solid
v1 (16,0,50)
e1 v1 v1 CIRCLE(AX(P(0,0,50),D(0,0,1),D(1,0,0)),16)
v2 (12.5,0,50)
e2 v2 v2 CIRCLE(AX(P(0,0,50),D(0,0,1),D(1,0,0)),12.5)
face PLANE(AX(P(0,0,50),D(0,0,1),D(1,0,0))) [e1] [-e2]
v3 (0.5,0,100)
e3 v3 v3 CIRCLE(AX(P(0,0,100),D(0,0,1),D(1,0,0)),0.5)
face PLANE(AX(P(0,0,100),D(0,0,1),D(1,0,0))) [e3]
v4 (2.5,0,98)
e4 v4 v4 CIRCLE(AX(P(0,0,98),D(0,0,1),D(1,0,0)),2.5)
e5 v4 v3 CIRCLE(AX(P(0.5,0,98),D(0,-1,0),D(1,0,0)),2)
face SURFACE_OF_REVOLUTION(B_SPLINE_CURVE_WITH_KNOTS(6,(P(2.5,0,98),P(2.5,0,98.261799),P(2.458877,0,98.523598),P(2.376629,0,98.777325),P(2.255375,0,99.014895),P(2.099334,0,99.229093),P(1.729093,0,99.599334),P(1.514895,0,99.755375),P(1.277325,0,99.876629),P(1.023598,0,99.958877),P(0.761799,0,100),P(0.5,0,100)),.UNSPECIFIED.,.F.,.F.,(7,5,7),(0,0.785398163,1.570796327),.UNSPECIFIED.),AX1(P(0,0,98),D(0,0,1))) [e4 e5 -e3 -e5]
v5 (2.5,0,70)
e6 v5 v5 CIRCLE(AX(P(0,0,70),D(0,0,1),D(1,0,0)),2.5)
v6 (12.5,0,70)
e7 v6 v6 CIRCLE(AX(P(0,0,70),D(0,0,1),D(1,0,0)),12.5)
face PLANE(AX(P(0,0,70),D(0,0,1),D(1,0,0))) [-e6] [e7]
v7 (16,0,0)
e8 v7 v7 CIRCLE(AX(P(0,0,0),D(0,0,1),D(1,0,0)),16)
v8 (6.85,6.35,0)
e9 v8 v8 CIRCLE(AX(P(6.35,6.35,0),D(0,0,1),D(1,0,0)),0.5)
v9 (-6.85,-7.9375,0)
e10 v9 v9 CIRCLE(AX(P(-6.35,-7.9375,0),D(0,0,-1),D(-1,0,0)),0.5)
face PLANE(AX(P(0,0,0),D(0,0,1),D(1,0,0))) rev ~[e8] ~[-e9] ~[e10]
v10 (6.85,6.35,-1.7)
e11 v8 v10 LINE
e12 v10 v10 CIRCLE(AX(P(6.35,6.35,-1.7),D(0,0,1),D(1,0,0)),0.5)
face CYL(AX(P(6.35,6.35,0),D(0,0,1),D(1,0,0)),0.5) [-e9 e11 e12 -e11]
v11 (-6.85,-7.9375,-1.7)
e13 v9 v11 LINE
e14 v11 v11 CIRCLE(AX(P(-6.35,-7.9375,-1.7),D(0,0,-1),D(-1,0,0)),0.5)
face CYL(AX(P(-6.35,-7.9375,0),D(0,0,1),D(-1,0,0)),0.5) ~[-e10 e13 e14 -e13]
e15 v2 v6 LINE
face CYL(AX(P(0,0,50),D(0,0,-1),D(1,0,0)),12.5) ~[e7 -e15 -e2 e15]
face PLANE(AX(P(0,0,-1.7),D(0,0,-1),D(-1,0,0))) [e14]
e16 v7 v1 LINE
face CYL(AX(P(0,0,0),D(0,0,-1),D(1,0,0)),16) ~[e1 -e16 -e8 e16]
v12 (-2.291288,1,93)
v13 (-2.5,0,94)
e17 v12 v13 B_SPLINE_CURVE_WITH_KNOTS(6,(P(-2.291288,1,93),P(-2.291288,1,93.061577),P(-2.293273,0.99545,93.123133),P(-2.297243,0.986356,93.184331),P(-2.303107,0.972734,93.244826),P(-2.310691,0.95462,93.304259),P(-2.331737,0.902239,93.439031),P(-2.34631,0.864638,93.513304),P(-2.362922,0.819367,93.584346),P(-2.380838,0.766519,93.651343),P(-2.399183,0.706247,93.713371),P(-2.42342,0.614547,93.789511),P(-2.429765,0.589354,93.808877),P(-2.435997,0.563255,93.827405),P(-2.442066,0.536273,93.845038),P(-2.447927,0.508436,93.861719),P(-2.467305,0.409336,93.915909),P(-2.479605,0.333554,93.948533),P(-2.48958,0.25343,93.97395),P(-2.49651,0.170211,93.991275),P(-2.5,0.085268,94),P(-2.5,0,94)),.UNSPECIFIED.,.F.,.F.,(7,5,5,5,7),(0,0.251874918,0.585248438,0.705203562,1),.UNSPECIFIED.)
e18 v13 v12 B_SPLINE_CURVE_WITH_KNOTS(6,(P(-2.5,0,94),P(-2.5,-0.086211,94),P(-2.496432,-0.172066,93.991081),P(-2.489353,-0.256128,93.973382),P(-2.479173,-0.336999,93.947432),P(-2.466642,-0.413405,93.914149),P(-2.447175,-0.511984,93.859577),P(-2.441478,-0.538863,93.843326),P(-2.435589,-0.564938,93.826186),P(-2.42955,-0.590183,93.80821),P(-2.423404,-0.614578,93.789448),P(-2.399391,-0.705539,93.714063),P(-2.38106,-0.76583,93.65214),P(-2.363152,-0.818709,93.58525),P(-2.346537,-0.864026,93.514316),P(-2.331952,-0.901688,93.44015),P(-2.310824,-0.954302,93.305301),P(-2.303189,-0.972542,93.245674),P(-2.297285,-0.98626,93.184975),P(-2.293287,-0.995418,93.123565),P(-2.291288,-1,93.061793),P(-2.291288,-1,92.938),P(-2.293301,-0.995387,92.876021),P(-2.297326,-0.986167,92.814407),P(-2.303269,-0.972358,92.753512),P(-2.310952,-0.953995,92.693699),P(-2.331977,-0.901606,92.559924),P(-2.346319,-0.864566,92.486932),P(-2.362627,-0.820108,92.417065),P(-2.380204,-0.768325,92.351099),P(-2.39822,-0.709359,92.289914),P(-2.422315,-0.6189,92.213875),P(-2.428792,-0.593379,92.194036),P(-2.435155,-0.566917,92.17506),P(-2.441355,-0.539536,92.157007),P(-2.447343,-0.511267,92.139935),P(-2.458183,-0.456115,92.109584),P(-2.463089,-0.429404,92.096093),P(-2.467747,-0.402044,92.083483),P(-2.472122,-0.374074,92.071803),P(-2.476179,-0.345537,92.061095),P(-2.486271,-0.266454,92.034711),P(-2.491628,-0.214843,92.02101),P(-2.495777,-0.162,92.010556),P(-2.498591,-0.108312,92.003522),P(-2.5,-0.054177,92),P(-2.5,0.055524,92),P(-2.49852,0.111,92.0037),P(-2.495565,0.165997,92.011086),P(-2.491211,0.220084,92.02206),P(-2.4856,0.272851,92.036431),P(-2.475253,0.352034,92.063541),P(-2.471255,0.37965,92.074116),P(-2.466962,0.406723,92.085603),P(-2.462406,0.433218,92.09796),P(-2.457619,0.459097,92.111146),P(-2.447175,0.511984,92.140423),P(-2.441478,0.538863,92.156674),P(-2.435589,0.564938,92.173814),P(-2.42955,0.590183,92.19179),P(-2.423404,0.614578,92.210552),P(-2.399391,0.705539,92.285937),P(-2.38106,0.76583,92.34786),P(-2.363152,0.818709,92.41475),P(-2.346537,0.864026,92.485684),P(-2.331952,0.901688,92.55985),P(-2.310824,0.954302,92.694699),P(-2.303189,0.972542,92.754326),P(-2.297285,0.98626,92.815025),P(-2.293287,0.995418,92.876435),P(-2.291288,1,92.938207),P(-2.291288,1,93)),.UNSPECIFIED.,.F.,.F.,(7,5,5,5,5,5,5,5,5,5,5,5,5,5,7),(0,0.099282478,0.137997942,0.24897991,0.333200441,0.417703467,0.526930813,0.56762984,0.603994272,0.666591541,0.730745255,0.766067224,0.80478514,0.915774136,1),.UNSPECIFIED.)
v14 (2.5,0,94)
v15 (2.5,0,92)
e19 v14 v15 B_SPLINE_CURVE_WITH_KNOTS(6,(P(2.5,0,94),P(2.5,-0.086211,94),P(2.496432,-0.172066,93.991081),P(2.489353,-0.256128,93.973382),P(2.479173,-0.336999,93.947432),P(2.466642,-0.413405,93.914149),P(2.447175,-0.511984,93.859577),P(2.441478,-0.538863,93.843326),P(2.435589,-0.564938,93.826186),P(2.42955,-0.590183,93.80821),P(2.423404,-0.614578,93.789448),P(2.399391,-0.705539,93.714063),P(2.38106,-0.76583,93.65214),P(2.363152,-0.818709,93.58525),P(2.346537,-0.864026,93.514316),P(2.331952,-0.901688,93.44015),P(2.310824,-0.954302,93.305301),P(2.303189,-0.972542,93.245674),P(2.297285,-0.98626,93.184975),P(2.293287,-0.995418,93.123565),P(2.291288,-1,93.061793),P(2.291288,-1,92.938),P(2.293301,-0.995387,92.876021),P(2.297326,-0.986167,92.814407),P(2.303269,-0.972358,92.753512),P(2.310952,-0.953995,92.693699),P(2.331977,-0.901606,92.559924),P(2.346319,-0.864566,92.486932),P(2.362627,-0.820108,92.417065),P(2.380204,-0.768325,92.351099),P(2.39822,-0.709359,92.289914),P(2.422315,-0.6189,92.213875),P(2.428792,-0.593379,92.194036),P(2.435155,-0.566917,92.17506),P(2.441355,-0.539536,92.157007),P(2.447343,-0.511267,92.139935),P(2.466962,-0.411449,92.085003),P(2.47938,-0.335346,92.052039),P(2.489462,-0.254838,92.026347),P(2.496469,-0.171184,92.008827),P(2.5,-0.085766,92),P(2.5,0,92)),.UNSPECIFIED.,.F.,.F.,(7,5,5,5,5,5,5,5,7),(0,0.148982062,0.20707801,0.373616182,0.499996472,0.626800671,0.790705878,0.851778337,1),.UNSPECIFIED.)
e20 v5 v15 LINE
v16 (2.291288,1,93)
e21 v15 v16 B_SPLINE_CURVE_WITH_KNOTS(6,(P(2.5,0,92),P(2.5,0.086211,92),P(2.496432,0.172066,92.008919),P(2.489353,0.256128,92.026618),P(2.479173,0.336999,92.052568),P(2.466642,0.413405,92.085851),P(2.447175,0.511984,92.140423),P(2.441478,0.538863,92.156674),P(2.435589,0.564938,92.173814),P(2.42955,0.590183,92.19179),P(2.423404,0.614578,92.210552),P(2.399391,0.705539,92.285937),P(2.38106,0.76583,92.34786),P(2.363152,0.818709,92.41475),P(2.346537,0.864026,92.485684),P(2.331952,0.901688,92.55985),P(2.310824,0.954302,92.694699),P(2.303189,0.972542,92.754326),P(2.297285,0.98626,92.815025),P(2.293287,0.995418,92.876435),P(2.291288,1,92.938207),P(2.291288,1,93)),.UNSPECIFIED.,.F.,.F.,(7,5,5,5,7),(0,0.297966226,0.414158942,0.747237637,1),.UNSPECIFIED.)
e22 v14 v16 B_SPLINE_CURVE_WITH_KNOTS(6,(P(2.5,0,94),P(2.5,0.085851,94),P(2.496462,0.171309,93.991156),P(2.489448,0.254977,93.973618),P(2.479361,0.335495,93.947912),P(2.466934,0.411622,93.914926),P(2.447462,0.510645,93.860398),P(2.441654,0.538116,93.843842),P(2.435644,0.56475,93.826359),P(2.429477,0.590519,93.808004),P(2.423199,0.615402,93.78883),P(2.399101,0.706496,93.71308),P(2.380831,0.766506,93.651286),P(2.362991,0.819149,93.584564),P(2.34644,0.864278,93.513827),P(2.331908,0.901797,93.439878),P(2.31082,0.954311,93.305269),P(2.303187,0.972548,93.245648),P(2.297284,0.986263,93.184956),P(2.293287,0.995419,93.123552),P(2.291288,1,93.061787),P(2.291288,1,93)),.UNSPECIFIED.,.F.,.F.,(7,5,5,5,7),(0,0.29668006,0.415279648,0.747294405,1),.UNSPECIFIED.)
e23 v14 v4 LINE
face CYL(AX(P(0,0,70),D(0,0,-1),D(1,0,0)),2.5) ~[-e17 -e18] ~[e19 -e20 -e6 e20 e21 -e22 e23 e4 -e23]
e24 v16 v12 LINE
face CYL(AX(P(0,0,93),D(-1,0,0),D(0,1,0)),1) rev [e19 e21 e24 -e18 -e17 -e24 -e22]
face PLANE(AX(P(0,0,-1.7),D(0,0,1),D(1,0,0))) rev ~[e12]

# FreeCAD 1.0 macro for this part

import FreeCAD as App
import Part
import Sketcher
Q = App.Units.Quantity


def edges_at(feature, points):
    """Names of the edges that pass closest to the given points."""
    edges = feature.Shape.Edges
    near = lambda p: min(range(len(edges)), key=lambda i: edges[i].distToShape(Part.Vertex(*p))[0])
    return sorted({f"Edge{near(p) + 1}" for p in points})

doc = App.newDocument("Part")
body = doc.addObject("PartDesign::Body", "Body")

sketch1 = doc.addObject("Sketcher::SketchObject", "Sketch")
body.addObject(sketch1)
sketch1.AttachmentSupport = (doc.XY_Plane, [""])
sketch1.MapMode = "FlatFace"
sketch1.addGeometry(Part.Circle(App.Vector(0, 0, 0), App.Vector(0, 0, 1), 16), False)
sketch1.addConstraint(Sketcher.Constraint("Coincident", 0, 3, -1, 1))
sketch1.addConstraint(Sketcher.Constraint("Diameter", 0, Q("32 mm")))
pad1 = doc.addObject("PartDesign::Pad", "Pad")
body.addObject(pad1)
pad1.Profile = sketch1
pad1.Length = 50

sketch2 = doc.addObject("Sketcher::SketchObject", "Sketch001")
body.addObject(sketch2)
sketch2.AttachmentSupport = (doc.XY_Plane, [""])
sketch2.MapMode = "FlatFace"
sketch2.AttachmentOffset = App.Placement(App.Vector(0, 0, 50), App.Rotation())
sketch2.addGeometry(Part.Circle(App.Vector(0, 0, 0), App.Vector(0, 0, 1), 12.5), False)
sketch2.addConstraint(Sketcher.Constraint("Coincident", 0, 3, -1, 1))
sketch2.addConstraint(Sketcher.Constraint("Diameter", 0, Q("25 mm")))
pad2 = doc.addObject("PartDesign::Pad", "Pad001")
body.addObject(pad2)
pad2.Profile = sketch2
pad2.Length = 20

sketch3 = doc.addObject("Sketcher::SketchObject", "Sketch002")
body.addObject(sketch3)
sketch3.AttachmentSupport = (doc.XY_Plane, [""])
sketch3.MapMode = "FlatFace"
sketch3.AttachmentOffset = App.Placement(App.Vector(0, 0, 70), App.Rotation())
sketch3.addGeometry(Part.Circle(App.Vector(0, 0, 0), App.Vector(0, 0, 1), 2.5), False)
sketch3.addConstraint(Sketcher.Constraint("Coincident", 0, 3, -1, 1))
sketch3.addConstraint(Sketcher.Constraint("Diameter", 0, Q("5 mm")))
pad3 = doc.addObject("PartDesign::Pad", "Pad002")
body.addObject(pad3)
pad3.Profile = sketch3
pad3.Length = 30

sketch4 = doc.addObject("Sketcher::SketchObject", "Sketch003")
body.addObject(sketch4)
sketch4.AttachmentSupport = (doc.YZ_Plane, [""])
sketch4.MapMode = "FlatFace"
sketch4.addGeometry(Part.Circle(App.Vector(0, 93, 0), App.Vector(0, 0, 1), 1), False)
sketch4.addConstraint(Sketcher.Constraint("PointOnObject", 0, 3, -2))
sketch4.addConstraint(Sketcher.Constraint("Diameter", 0, Q("2 mm")))
sketch4.addConstraint(Sketcher.Constraint("DistanceY", -1, 1, 0, 3, Q("93 mm")))
pocket1 = doc.addObject("PartDesign::Pocket", "Pocket")
body.addObject(pocket1)
pocket1.Profile = sketch4
pocket1.Type = "ThroughAll"
pocket1.Midplane = True
doc.recompute()

fillet = doc.addObject("PartDesign::Fillet", "Fillet")
body.addObject(fillet)
fillet.Base = (pocket1, edges_at(pocket1, [(-2.5, 0, 100)]))
fillet.Radius = 2

sketch5 = doc.addObject("Sketcher::SketchObject", "Sketch004")
body.addObject(sketch5)
sketch5.AttachmentSupport = (doc.XY_Plane, [""])
sketch5.MapMode = "FlatFace"
sketch5.addGeometry(Part.Circle(App.Vector(6.35, 6.35, 0), App.Vector(0, 0, 1), 0.5), False)
sketch5.addConstraint(Sketcher.Constraint("Diameter", 0, Q("1 mm")))
sketch5.addConstraint(Sketcher.Constraint("DistanceX", -1, 1, 0, 3, Q("6.35 mm")))
sketch5.addConstraint(Sketcher.Constraint("DistanceY", -1, 1, 0, 3, Q("6.35 mm")))
pad4 = doc.addObject("PartDesign::Pad", "Pad003")
body.addObject(pad4)
pad4.Profile = sketch5
pad4.Length = 1.7
pad4.Reversed = True

sketch6 = doc.addObject("Sketcher::SketchObject", "Sketch005")
body.addObject(sketch6)
sketch6.AttachmentSupport = (doc.XY_Plane, [""])
sketch6.MapMode = "FlatFace"
sketch6.addGeometry(Part.Circle(App.Vector(-6.35, -7.9375, 0), App.Vector(0, 0, 1), 0.5), False)
sketch6.addConstraint(Sketcher.Constraint("Diameter", 0, Q("1 mm")))
sketch6.addConstraint(Sketcher.Constraint("DistanceX", 0, 3, -1, 1, Q("6.35 mm")))
sketch6.addConstraint(Sketcher.Constraint("DistanceY", 0, 3, -1, 1, Q("7.9375 mm")))
pad5 = doc.addObject("PartDesign::Pad", "Pad004")
body.addObject(pad5)
pad5.Profile = sketch6
pad5.Length = 1.7
pad5.Reversed = True

doc.recompute()
